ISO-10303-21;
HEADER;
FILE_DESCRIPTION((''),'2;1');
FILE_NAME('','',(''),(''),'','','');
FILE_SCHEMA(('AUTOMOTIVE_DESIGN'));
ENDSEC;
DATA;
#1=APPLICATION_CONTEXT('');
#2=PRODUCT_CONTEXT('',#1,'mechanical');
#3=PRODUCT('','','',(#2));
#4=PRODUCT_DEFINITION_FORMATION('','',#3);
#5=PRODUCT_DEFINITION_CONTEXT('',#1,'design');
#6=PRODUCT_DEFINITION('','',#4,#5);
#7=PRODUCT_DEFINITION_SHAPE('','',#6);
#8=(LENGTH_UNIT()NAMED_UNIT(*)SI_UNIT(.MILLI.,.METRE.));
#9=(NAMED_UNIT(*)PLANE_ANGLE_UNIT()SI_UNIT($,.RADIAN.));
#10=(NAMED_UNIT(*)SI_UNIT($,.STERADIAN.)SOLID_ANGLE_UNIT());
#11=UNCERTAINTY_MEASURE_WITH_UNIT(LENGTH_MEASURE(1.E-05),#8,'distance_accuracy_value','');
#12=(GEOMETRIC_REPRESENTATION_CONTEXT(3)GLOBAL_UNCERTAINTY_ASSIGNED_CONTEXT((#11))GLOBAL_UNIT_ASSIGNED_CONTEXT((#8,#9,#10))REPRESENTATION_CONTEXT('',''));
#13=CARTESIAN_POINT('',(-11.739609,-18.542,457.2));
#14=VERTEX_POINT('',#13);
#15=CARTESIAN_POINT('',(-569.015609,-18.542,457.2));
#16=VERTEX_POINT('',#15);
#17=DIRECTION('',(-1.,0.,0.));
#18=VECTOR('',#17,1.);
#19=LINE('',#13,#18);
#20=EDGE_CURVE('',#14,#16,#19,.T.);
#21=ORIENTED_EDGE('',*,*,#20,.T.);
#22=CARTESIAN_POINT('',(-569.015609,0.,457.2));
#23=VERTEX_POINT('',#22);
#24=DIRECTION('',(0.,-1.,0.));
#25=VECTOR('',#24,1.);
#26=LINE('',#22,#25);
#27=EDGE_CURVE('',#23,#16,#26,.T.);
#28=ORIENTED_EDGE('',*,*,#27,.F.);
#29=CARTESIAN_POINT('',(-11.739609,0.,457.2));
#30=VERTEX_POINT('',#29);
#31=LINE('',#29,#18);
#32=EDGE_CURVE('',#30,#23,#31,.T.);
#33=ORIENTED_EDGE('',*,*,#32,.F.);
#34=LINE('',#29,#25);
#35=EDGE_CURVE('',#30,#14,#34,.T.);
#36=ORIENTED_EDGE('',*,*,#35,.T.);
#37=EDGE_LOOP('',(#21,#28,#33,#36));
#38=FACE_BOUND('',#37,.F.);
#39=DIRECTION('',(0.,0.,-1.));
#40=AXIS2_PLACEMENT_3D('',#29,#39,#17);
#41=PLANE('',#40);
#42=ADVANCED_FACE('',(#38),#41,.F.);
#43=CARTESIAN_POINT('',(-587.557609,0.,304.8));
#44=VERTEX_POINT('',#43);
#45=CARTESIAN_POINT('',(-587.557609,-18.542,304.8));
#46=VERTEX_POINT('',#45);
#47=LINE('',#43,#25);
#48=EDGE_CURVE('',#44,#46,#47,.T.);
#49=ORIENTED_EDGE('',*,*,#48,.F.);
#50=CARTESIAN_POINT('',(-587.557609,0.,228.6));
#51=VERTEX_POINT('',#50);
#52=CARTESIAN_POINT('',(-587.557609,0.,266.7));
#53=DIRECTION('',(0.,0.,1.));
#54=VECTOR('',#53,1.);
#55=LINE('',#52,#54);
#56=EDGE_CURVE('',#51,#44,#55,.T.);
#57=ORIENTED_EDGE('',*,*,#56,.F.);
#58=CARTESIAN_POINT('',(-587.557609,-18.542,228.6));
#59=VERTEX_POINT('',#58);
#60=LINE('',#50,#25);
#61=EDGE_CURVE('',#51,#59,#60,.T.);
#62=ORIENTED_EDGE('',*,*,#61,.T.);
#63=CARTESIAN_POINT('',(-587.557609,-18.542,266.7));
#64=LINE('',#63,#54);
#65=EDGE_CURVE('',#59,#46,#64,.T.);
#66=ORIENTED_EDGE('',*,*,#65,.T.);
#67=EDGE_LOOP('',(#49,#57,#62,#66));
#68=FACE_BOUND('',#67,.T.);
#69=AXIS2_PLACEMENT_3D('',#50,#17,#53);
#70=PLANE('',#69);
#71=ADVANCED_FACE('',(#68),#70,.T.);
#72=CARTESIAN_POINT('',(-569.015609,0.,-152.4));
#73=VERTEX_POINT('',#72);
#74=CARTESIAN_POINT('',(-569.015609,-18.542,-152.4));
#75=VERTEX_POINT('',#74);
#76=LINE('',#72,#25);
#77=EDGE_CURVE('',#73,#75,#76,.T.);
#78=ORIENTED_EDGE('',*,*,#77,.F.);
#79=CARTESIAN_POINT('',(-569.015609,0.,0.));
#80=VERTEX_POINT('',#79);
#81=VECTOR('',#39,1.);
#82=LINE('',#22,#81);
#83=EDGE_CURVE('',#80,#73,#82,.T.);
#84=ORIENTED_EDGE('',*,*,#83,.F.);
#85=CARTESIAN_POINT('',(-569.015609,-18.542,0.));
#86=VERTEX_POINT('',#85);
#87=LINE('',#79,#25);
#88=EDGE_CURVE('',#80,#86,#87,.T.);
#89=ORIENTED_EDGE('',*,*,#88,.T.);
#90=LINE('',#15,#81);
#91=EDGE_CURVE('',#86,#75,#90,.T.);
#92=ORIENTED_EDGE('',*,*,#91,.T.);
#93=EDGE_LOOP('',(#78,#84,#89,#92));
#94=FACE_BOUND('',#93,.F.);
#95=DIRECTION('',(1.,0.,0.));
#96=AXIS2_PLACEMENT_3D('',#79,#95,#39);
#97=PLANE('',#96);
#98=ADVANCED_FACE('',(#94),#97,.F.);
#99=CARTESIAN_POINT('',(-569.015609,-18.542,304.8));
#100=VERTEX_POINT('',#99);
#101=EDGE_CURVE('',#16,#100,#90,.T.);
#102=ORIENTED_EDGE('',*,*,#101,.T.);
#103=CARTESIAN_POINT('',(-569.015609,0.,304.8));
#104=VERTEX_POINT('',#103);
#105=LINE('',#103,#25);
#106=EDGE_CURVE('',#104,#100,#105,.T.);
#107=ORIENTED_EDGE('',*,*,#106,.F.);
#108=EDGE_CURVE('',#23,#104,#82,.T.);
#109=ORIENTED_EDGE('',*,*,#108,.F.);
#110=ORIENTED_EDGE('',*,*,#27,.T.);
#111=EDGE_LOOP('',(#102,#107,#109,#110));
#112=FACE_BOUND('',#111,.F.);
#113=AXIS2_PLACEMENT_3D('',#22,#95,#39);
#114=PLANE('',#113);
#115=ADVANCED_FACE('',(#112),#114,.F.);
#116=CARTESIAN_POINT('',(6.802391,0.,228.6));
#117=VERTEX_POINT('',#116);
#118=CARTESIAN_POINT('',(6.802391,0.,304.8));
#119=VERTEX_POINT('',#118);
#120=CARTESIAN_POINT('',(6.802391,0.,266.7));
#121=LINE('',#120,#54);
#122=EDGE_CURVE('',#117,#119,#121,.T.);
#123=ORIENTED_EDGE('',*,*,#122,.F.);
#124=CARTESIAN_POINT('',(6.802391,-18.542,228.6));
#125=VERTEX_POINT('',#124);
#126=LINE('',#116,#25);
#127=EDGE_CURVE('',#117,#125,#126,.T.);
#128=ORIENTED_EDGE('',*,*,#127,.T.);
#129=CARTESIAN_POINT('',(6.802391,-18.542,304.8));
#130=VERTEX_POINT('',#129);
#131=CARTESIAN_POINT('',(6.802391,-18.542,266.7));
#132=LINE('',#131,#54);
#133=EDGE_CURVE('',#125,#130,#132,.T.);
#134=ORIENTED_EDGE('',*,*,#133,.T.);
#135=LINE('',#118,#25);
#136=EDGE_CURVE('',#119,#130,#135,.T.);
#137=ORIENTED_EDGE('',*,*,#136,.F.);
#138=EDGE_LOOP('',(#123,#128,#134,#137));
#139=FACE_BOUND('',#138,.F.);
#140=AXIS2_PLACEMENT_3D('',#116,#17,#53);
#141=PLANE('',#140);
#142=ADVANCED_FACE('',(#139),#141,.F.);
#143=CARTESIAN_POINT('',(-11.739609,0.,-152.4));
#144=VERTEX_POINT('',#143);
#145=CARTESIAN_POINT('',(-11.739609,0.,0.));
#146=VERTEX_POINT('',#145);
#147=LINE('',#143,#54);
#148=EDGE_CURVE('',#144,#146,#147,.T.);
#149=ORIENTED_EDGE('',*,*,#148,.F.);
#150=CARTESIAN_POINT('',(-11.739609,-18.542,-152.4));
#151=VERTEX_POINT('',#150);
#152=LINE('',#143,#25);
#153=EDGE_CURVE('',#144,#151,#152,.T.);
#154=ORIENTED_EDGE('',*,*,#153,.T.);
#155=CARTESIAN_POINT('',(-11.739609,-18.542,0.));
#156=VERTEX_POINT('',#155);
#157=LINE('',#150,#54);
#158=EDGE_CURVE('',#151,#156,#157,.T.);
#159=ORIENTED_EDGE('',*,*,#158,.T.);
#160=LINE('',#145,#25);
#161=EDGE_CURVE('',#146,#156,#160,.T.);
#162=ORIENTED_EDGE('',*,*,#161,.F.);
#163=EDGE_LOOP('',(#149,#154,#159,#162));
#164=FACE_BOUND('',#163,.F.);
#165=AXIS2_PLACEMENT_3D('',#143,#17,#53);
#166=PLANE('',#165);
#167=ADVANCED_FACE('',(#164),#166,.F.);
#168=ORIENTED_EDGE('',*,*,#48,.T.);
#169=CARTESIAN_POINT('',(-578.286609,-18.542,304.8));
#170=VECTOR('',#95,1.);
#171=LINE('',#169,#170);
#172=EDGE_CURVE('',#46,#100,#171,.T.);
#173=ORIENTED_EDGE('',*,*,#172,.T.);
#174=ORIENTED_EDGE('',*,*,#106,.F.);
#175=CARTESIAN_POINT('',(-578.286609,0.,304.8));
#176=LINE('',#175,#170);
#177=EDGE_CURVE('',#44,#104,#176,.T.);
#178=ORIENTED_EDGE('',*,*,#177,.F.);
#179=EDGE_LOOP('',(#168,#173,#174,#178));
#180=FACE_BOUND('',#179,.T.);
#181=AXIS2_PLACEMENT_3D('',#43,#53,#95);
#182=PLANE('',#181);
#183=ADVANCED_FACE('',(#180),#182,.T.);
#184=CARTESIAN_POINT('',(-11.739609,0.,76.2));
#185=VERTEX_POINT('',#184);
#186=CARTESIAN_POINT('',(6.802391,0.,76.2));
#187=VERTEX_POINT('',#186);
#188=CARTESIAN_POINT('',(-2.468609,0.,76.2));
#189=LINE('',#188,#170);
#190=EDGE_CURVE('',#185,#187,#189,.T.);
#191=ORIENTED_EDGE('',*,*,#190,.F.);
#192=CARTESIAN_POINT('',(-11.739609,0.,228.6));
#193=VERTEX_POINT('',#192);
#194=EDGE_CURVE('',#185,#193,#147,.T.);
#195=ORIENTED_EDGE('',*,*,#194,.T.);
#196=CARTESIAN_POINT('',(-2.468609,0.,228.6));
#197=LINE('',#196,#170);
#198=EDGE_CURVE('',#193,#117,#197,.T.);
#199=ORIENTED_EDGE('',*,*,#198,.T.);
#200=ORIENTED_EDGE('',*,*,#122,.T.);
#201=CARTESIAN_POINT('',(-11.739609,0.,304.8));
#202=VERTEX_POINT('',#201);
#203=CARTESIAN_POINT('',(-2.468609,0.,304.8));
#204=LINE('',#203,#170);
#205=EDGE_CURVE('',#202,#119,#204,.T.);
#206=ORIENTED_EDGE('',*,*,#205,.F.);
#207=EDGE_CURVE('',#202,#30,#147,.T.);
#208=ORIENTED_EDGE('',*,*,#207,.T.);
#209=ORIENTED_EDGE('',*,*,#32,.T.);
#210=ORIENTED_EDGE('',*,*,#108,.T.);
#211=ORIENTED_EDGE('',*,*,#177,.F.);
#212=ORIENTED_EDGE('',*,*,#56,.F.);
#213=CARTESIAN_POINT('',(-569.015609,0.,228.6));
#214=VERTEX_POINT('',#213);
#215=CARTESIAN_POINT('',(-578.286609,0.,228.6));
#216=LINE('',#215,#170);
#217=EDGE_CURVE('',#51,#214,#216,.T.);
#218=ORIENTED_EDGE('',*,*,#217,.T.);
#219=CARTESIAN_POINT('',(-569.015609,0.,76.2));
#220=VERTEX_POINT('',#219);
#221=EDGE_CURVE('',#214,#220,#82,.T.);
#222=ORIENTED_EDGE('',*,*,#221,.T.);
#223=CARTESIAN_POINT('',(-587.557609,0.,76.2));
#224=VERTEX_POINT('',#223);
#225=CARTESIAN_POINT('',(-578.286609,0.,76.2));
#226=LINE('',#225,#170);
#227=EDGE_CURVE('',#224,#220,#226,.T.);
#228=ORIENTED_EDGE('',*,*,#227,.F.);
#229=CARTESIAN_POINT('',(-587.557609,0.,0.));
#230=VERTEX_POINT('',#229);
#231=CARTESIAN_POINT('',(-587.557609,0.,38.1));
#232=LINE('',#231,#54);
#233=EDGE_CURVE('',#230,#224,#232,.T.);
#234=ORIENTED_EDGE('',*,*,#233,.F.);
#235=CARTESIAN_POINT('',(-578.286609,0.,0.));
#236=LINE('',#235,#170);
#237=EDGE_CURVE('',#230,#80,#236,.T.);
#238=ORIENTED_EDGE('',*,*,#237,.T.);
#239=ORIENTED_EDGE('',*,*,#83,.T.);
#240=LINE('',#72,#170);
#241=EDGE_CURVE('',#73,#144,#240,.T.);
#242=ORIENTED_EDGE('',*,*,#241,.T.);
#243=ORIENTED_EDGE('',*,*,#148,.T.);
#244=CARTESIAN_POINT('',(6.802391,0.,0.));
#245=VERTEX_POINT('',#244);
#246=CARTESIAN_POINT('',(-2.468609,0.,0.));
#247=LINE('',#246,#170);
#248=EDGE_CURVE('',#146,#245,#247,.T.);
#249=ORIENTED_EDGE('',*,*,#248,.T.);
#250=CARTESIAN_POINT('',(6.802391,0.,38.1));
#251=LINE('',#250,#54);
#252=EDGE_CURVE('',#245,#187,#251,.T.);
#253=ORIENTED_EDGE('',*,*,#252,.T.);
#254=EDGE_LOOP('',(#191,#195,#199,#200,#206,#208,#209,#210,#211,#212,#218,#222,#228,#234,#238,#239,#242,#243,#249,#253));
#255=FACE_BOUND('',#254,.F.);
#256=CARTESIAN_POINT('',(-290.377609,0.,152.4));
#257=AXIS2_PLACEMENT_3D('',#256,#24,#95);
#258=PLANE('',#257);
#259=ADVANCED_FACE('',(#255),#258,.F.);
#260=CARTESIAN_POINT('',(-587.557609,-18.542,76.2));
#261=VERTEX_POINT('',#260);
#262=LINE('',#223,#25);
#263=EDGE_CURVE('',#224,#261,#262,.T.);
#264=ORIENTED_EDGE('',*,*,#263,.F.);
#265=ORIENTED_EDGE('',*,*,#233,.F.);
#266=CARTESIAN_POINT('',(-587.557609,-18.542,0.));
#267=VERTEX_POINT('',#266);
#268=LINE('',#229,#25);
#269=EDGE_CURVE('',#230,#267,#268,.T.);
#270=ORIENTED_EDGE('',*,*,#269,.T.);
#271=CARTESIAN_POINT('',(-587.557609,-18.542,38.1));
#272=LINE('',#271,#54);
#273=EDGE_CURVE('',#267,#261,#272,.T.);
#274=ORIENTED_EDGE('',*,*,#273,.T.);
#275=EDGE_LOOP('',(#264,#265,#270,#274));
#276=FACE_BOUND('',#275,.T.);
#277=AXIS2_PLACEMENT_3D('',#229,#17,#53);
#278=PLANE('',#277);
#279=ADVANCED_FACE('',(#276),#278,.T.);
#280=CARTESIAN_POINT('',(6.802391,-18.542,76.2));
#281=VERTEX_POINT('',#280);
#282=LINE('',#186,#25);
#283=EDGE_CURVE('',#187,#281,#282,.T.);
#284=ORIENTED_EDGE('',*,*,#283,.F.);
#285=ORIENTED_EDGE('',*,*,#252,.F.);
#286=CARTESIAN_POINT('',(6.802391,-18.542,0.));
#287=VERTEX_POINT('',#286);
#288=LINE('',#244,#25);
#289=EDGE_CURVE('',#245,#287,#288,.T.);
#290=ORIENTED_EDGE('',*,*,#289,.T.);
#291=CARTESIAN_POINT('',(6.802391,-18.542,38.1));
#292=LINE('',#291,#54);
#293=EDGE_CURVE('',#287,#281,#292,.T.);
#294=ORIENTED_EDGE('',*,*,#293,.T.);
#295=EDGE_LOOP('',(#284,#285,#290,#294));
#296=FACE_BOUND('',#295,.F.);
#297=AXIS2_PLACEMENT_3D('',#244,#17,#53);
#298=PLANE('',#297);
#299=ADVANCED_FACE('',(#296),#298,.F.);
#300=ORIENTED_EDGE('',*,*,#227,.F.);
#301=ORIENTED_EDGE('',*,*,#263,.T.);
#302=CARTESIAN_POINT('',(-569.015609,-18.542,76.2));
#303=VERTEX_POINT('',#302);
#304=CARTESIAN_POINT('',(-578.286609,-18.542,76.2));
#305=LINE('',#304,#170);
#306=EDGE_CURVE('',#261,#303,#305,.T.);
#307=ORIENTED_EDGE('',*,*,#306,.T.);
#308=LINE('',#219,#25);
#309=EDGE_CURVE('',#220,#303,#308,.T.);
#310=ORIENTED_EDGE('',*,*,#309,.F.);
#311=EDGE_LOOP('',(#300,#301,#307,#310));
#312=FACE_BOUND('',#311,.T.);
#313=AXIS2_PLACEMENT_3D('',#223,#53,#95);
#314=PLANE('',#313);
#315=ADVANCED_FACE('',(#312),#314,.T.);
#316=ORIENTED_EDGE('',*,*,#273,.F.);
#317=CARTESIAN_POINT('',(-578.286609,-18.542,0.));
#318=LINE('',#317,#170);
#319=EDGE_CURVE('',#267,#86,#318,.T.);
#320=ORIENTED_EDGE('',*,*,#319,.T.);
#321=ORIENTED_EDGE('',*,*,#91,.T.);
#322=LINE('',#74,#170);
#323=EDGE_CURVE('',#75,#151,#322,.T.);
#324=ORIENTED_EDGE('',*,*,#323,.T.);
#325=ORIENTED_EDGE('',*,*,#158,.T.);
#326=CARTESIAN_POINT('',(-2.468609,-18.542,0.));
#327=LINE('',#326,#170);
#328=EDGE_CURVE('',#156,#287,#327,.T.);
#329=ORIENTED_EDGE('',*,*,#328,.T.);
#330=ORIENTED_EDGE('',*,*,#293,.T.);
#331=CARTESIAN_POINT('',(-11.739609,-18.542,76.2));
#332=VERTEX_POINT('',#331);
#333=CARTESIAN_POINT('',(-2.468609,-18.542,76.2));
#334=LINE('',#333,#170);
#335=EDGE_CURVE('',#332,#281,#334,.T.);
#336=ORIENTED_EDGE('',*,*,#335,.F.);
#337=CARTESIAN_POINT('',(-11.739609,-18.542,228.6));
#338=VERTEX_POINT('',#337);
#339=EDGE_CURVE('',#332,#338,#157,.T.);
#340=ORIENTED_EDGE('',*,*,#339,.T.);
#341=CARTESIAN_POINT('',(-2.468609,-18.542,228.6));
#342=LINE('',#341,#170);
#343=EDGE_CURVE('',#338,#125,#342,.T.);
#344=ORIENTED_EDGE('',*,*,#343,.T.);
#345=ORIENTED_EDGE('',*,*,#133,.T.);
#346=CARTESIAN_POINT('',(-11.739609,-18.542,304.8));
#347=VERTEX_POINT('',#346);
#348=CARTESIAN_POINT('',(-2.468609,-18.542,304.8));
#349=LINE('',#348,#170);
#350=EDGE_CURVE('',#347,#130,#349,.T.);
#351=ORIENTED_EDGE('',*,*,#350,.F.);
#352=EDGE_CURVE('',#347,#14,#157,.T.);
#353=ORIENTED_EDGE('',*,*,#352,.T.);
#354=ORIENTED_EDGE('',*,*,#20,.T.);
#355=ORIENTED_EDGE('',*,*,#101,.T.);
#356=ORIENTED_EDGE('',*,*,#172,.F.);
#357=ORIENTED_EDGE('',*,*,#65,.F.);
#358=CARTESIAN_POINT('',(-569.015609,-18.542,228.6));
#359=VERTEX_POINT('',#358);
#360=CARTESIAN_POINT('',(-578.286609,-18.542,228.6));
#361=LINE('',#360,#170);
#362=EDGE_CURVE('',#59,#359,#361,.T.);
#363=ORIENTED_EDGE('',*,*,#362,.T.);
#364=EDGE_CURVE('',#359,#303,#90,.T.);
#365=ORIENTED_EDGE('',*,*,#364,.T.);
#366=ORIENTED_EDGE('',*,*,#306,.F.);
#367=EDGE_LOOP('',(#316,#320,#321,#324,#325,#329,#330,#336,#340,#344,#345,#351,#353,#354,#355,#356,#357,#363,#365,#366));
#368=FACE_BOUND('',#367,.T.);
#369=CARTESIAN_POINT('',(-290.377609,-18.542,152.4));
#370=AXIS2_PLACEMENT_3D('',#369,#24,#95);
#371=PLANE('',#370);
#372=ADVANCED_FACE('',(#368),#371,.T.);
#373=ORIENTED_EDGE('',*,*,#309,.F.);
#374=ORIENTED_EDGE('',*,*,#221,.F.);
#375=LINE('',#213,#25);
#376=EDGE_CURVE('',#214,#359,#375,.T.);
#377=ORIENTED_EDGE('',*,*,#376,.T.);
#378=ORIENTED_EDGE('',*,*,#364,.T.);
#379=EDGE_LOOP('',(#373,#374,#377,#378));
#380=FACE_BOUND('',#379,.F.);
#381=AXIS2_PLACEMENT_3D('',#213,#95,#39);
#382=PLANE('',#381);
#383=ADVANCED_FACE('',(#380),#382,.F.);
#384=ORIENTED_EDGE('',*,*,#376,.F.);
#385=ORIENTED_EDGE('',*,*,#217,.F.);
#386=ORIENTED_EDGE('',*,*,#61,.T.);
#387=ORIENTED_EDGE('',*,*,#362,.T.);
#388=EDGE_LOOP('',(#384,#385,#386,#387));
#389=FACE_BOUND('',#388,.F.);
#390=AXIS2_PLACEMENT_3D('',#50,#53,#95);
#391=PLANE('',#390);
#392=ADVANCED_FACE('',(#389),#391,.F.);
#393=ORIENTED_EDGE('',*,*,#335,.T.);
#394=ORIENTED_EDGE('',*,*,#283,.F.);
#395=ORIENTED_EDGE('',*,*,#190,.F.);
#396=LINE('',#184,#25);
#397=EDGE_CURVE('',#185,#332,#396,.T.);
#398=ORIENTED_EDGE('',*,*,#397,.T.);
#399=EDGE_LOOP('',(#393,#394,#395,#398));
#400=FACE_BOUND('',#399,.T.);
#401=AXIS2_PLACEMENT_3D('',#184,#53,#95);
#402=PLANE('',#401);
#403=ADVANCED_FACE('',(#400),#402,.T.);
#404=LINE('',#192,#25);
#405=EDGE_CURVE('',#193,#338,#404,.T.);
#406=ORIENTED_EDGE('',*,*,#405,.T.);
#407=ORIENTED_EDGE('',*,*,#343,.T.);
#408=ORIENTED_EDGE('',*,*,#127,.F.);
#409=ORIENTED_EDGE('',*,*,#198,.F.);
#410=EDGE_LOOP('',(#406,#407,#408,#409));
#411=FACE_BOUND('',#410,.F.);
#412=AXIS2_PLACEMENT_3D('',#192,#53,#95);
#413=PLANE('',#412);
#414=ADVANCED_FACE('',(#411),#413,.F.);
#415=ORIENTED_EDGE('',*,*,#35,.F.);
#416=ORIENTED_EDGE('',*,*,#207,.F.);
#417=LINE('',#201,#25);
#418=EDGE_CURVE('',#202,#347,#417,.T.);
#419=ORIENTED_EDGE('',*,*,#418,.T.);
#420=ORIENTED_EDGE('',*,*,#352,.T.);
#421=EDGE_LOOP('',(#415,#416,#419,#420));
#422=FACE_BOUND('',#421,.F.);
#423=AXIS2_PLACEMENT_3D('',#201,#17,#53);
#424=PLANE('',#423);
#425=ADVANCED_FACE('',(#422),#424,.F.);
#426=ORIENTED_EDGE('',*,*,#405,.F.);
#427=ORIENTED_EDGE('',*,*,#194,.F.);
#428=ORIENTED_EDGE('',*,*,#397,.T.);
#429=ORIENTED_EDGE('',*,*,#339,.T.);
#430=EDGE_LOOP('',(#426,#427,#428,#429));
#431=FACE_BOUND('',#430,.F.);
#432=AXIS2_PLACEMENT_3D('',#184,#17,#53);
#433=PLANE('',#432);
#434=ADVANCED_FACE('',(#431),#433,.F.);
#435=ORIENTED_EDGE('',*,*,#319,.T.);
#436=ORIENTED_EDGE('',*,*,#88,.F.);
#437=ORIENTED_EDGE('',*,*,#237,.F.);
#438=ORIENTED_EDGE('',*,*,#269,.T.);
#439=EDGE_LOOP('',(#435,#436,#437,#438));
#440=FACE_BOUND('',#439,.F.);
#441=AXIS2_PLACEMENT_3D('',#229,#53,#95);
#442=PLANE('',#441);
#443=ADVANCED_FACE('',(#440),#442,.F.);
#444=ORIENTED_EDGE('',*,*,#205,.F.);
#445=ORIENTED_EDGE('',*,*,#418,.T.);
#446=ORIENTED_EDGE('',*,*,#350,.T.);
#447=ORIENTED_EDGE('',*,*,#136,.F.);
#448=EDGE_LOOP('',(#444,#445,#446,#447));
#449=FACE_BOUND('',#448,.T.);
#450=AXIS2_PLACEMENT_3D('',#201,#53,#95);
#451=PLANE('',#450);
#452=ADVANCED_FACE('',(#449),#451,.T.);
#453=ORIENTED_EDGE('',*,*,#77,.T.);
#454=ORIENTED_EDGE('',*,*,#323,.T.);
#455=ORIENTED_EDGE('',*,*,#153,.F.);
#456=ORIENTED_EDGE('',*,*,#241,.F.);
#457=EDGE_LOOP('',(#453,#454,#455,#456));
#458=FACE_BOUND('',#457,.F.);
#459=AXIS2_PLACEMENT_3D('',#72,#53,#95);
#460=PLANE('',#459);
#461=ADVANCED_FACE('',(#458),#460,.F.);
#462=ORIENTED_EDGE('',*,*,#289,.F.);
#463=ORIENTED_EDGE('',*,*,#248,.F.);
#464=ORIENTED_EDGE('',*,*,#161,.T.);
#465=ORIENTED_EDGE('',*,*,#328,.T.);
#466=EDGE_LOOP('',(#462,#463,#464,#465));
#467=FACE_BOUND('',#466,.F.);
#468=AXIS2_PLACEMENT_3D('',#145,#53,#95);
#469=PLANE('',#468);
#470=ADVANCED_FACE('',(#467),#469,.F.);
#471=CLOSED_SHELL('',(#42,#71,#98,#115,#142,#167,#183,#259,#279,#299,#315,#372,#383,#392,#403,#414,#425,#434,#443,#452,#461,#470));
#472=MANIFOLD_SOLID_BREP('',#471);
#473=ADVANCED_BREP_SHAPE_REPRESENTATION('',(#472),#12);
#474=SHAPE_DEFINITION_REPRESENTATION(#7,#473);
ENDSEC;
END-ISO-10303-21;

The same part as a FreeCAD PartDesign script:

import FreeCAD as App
import Part
import Sketcher
from FreeCAD import Vector
Q = App.Units.Quantity

doc = App.newDocument("Part")
body = doc.addObject("PartDesign::Body", "Body")

sketch1 = body.newObject("Sketcher::SketchObject", "Sketch")
sketch1.AttachmentSupport = (doc.getObject("XZ_Plane"), [""])
sketch1.MapMode = "FlatFace"
sketch1.addGeometry([
    Part.LineSegment(Vector(-12, 457, 0), Vector(-569, 457, 0)),
    Part.LineSegment(Vector(-569, 457, 0), Vector(-569, 305, 0)),
    Part.LineSegment(Vector(-569, 305, 0), Vector(-588, 305, 0)),
    Part.LineSegment(Vector(-588, 305, 0), Vector(-588, 229, 0)),
    Part.LineSegment(Vector(-588, 229, 0), Vector(-569, 229, 0)),
    Part.LineSegment(Vector(-569, 229, 0), Vector(-569, 76, 0)),
    Part.LineSegment(Vector(-569, 76, 0), Vector(-588, 76, 0)),
    Part.LineSegment(Vector(-588, 76, 0), Vector(-588, 0, 0)),
    Part.LineSegment(Vector(-588, 0, 0), Vector(-569, 0, 0)),
    Part.LineSegment(Vector(-569, 0, 0), Vector(-569, -152, 0)),
    Part.LineSegment(Vector(-569, -152, 0), Vector(-12, -152, 0)),
    Part.LineSegment(Vector(-12, -152, 0), Vector(-12, 0, 0)),
    Part.LineSegment(Vector(-12, 0, 0), Vector(7, 0, 0)),
    Part.LineSegment(Vector(7, 0, 0), Vector(7, 76, 0)),
    Part.LineSegment(Vector(7, 76, 0), Vector(-12, 76, 0)),
    Part.LineSegment(Vector(-12, 76, 0), Vector(-12, 229, 0)),
    Part.LineSegment(Vector(-12, 229, 0), Vector(7, 229, 0)),
    Part.LineSegment(Vector(7, 229, 0), Vector(7, 305, 0)),
    Part.LineSegment(Vector(7, 305, 0), Vector(-12, 305, 0)),
    Part.LineSegment(Vector(-12, 305, 0), Vector(-12, 457, 0)),
], False)
sketch1.addConstraint([
    Sketcher.Constraint("Coincident", 0, 2, 1, 1),
    Sketcher.Constraint("Coincident", 1, 2, 2, 1),
    Sketcher.Constraint("Coincident", 2, 2, 3, 1),
    Sketcher.Constraint("Coincident", 3, 2, 4, 1),
    Sketcher.Constraint("Coincident", 4, 2, 5, 1),
    Sketcher.Constraint("Coincident", 5, 2, 6, 1),
    Sketcher.Constraint("Coincident", 6, 2, 7, 1),
    Sketcher.Constraint("Coincident", 7, 2, 8, 1),
    Sketcher.Constraint("Coincident", 8, 2, 9, 1),
    Sketcher.Constraint("Coincident", 9, 2, 10, 1),
    Sketcher.Constraint("Coincident", 10, 2, 11, 1),
    Sketcher.Constraint("Coincident", 11, 2, 12, 1),
    Sketcher.Constraint("Coincident", 12, 2, 13, 1),
    Sketcher.Constraint("Coincident", 13, 2, 14, 1),
    Sketcher.Constraint("Coincident", 14, 2, 15, 1),
    Sketcher.Constraint("Coincident", 15, 2, 16, 1),
    Sketcher.Constraint("Coincident", 16, 2, 17, 1),
    Sketcher.Constraint("Coincident", 17, 2, 18, 1),
    Sketcher.Constraint("Coincident", 18, 2, 19, 1),
    Sketcher.Constraint("Coincident", 19, 2, 0, 1),
    Sketcher.Constraint("Horizontal", 0),
    Sketcher.Constraint("Vertical", 1),
    Sketcher.Constraint("Horizontal", 2),
    Sketcher.Constraint("Vertical", 3),
    Sketcher.Constraint("Horizontal", 4),
    Sketcher.Constraint("Vertical", 5),
    Sketcher.Constraint("Horizontal", 6),
    Sketcher.Constraint("Vertical", 7),
    Sketcher.Constraint("Horizontal", 8),
    Sketcher.Constraint("Vertical", 9),
    Sketcher.Constraint("Horizontal", 10),
    Sketcher.Constraint("Vertical", 11),
    Sketcher.Constraint("Horizontal", 12),
    Sketcher.Constraint("Vertical", 13),
    Sketcher.Constraint("Horizontal", 14),
    Sketcher.Constraint("Vertical", 15),
    Sketcher.Constraint("Horizontal", 16),
    Sketcher.Constraint("Vertical", 17),
    Sketcher.Constraint("Horizontal", 18),
    Sketcher.Constraint("Vertical", 19),
    Sketcher.Constraint("PointOnObject", 7, 2, -1),
    Sketcher.Constraint("PointOnObject", 11, 2, -1),
    Sketcher.Constraint("Horizontal", 6, 2, 13, 2),
    Sketcher.Constraint("Horizontal", 4, 2, 15, 2),
    Sketcher.Constraint("Horizontal", 2, 2, 17, 2),
    Sketcher.Constraint("Vertical", 1, 2, 4, 2),
    Sketcher.Constraint("Vertical", 3, 2, 6, 2),
    Sketcher.Constraint("Vertical", 5, 2, 8, 2),
    Sketcher.Constraint("Vertical", 11, 2, 14, 2),
    Sketcher.Constraint("Vertical", 13, 2, 16, 2),
    Sketcher.Constraint("Vertical", 15, 2, 18, 2),
    Sketcher.Constraint("Equal", 8, 12),
    Sketcher.Constraint("Equal", 1, 5),
    Sketcher.Constraint("Equal", 3, 7),
    Sketcher.Constraint("Equal", 5, 9),
    Sketcher.Constraint("DistanceY", 1, 2, 1, 1, Q("6 in")),
    Sketcher.Constraint("DistanceY", 3, 2, 3, 1, Q("3 in")),
    Sketcher.Constraint("DistanceX", 0, 2, 0, 1, Q("21.94 in")),
    Sketcher.Constraint("DistanceX", 2, 2, 2, 1, Q("0.73 in")),
    Sketcher.Constraint("DistanceX", 0, 2, -1, 1, 569.015609),
])
pad1 = body.newObject("PartDesign::Pad", "Pad")
pad1.Profile = sketch1
pad1.Length = Q("0.73 in")

doc.recompute()
